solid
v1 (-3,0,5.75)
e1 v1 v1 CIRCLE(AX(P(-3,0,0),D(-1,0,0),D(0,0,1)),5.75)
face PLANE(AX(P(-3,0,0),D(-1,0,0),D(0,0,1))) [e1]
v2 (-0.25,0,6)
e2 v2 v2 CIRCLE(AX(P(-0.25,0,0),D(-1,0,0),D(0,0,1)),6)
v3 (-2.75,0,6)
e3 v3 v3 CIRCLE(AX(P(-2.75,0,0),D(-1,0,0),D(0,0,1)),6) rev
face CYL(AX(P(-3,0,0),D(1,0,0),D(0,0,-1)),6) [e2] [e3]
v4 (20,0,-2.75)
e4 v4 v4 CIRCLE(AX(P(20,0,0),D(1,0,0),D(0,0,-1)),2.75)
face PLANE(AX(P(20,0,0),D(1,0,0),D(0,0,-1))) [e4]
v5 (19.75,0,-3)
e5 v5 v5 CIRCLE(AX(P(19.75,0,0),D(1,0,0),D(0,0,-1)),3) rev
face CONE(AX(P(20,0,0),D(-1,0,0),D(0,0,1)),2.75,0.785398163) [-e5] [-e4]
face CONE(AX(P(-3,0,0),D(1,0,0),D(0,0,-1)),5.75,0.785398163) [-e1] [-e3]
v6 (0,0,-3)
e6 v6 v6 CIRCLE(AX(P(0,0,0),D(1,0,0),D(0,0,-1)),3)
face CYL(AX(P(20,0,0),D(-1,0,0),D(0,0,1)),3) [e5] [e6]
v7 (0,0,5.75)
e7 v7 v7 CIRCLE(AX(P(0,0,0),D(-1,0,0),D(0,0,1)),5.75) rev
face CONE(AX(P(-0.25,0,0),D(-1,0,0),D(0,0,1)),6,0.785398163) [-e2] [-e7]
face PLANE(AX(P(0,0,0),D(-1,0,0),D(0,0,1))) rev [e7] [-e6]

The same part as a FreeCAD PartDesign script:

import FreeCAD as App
import Part
import Sketcher


def edges_at(feature, points):
    """Names of the edges that pass closest to the given points."""
    edges = feature.Shape.Edges
    near = lambda p: min(range(len(edges)), key=lambda i: edges[i].distToShape(Part.Vertex(*p))[0])
    return sorted({f"Edge{near(p) + 1}" for p in points})

doc = App.newDocument("Part")
body = doc.addObject("PartDesign::Body", "Body")

# Sketch on YZ plane
sketch1 = body.newObject("Sketcher::SketchObject", "Sketch")
sketch1.AttachmentSupport = (doc.getObject("YZ_Plane"), [""])
sketch1.MapMode = "FlatFace"
sketch1.addGeometry(Part.Circle(App.Vector(0, 0, 0), App.Vector(0, 0, 1), 3), False)
sketch1.addConstraint([
    Sketcher.Constraint("Coincident", 0, 3, -1, 1),
    Sketcher.Constraint("Diameter", 0, 6.0),
])
pad1 = body.newObject("PartDesign::Pad", "Pad")
pad1.Profile = sketch1
pad1.Length = 20

# Sketch on YZ plane
sketch2 = body.newObject("Sketcher::SketchObject", "Sketch001")
sketch2.AttachmentSupport = (doc.getObject("YZ_Plane"), [""])
sketch2.MapMode = "FlatFace"
sketch2.addGeometry(Part.Circle(App.Vector(0, 0, 0), App.Vector(0, 0, 1), 6), False)
sketch2.addConstraint([
    Sketcher.Constraint("Coincident", 0, 3, -1, 1),
    Sketcher.Constraint("Diameter", 0, 12.0),
])
pad2 = body.newObject("PartDesign::Pad", "Pad001")
pad2.Profile = sketch2
pad2.Length = 3
pad2.Reversed = True
doc.recompute()

chamfer = body.newObject("PartDesign::Chamfer", "Chamfer")
chamfer.Base = (pad2, edges_at(pad2, [(20, 0, 3), (0, 0, -6), (-3, 0, -6)]))
chamfer.Size = 0.25

doc.recompute()
